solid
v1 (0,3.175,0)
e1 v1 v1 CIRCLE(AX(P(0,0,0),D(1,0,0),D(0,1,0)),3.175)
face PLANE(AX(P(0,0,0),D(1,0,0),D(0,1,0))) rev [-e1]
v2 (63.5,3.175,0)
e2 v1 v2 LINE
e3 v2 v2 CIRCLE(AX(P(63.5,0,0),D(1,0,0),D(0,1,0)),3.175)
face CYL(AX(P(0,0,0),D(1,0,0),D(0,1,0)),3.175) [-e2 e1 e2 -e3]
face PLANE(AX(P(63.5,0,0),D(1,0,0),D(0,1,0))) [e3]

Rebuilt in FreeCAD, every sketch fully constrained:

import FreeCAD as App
import Part
import Sketcher
from FreeCAD import Vector
Q = App.Units.Quantity

doc = App.newDocument("Part")
body = doc.addObject("PartDesign::Body", "Body")

# Sketch on XY plane
sketch1 = body.newObject("Sketcher::SketchObject", "Sketch")
sketch1.AttachmentSupport = (doc.getObject("XY_Plane"), [""])
sketch1.MapMode = "FlatFace"
sketch1.addGeometry([
    Part.LineSegment(Vector(0, 3.2, 0), Vector(0, 0, 0)),
    Part.LineSegment(Vector(0, 0, 0), Vector(63.5, 0, 0)),
    Part.LineSegment(Vector(63.5, 0, 0), Vector(63.5, 3.2, 0)),
    Part.LineSegment(Vector(63.5, 3.2, 0), Vector(0, 3.2, 0)),
], False)
sketch1.addConstraint([
    Sketcher.Constraint("Coincident", 0, 2, 1, 1),
    Sketcher.Constraint("Coincident", 1, 2, 2, 1),
    Sketcher.Constraint("Coincident", 2, 2, 3, 1),
    Sketcher.Constraint("Coincident", 3, 2, 0, 1),
    Sketcher.Constraint("Vertical", 0),
    Sketcher.Constraint("Horizontal", 1),
    Sketcher.Constraint("Vertical", 2),
    Sketcher.Constraint("Horizontal", 3),
    Sketcher.Constraint("Coincident", 0, 2, -1, 1),
    Sketcher.Constraint("DistanceX", 1, 1, 1, 2, Q("2.5 in")),
    Sketcher.Constraint("DistanceY", 0, 2, 0, 1, Q("0.125 in")),
])
revolution = body.newObject("PartDesign::Revolution", "Revolution")
revolution.Profile = sketch1
revolution.ReferenceAxis = (sketch1, ["H_Axis"])
revolution.Angle = 360

doc.recompute()
